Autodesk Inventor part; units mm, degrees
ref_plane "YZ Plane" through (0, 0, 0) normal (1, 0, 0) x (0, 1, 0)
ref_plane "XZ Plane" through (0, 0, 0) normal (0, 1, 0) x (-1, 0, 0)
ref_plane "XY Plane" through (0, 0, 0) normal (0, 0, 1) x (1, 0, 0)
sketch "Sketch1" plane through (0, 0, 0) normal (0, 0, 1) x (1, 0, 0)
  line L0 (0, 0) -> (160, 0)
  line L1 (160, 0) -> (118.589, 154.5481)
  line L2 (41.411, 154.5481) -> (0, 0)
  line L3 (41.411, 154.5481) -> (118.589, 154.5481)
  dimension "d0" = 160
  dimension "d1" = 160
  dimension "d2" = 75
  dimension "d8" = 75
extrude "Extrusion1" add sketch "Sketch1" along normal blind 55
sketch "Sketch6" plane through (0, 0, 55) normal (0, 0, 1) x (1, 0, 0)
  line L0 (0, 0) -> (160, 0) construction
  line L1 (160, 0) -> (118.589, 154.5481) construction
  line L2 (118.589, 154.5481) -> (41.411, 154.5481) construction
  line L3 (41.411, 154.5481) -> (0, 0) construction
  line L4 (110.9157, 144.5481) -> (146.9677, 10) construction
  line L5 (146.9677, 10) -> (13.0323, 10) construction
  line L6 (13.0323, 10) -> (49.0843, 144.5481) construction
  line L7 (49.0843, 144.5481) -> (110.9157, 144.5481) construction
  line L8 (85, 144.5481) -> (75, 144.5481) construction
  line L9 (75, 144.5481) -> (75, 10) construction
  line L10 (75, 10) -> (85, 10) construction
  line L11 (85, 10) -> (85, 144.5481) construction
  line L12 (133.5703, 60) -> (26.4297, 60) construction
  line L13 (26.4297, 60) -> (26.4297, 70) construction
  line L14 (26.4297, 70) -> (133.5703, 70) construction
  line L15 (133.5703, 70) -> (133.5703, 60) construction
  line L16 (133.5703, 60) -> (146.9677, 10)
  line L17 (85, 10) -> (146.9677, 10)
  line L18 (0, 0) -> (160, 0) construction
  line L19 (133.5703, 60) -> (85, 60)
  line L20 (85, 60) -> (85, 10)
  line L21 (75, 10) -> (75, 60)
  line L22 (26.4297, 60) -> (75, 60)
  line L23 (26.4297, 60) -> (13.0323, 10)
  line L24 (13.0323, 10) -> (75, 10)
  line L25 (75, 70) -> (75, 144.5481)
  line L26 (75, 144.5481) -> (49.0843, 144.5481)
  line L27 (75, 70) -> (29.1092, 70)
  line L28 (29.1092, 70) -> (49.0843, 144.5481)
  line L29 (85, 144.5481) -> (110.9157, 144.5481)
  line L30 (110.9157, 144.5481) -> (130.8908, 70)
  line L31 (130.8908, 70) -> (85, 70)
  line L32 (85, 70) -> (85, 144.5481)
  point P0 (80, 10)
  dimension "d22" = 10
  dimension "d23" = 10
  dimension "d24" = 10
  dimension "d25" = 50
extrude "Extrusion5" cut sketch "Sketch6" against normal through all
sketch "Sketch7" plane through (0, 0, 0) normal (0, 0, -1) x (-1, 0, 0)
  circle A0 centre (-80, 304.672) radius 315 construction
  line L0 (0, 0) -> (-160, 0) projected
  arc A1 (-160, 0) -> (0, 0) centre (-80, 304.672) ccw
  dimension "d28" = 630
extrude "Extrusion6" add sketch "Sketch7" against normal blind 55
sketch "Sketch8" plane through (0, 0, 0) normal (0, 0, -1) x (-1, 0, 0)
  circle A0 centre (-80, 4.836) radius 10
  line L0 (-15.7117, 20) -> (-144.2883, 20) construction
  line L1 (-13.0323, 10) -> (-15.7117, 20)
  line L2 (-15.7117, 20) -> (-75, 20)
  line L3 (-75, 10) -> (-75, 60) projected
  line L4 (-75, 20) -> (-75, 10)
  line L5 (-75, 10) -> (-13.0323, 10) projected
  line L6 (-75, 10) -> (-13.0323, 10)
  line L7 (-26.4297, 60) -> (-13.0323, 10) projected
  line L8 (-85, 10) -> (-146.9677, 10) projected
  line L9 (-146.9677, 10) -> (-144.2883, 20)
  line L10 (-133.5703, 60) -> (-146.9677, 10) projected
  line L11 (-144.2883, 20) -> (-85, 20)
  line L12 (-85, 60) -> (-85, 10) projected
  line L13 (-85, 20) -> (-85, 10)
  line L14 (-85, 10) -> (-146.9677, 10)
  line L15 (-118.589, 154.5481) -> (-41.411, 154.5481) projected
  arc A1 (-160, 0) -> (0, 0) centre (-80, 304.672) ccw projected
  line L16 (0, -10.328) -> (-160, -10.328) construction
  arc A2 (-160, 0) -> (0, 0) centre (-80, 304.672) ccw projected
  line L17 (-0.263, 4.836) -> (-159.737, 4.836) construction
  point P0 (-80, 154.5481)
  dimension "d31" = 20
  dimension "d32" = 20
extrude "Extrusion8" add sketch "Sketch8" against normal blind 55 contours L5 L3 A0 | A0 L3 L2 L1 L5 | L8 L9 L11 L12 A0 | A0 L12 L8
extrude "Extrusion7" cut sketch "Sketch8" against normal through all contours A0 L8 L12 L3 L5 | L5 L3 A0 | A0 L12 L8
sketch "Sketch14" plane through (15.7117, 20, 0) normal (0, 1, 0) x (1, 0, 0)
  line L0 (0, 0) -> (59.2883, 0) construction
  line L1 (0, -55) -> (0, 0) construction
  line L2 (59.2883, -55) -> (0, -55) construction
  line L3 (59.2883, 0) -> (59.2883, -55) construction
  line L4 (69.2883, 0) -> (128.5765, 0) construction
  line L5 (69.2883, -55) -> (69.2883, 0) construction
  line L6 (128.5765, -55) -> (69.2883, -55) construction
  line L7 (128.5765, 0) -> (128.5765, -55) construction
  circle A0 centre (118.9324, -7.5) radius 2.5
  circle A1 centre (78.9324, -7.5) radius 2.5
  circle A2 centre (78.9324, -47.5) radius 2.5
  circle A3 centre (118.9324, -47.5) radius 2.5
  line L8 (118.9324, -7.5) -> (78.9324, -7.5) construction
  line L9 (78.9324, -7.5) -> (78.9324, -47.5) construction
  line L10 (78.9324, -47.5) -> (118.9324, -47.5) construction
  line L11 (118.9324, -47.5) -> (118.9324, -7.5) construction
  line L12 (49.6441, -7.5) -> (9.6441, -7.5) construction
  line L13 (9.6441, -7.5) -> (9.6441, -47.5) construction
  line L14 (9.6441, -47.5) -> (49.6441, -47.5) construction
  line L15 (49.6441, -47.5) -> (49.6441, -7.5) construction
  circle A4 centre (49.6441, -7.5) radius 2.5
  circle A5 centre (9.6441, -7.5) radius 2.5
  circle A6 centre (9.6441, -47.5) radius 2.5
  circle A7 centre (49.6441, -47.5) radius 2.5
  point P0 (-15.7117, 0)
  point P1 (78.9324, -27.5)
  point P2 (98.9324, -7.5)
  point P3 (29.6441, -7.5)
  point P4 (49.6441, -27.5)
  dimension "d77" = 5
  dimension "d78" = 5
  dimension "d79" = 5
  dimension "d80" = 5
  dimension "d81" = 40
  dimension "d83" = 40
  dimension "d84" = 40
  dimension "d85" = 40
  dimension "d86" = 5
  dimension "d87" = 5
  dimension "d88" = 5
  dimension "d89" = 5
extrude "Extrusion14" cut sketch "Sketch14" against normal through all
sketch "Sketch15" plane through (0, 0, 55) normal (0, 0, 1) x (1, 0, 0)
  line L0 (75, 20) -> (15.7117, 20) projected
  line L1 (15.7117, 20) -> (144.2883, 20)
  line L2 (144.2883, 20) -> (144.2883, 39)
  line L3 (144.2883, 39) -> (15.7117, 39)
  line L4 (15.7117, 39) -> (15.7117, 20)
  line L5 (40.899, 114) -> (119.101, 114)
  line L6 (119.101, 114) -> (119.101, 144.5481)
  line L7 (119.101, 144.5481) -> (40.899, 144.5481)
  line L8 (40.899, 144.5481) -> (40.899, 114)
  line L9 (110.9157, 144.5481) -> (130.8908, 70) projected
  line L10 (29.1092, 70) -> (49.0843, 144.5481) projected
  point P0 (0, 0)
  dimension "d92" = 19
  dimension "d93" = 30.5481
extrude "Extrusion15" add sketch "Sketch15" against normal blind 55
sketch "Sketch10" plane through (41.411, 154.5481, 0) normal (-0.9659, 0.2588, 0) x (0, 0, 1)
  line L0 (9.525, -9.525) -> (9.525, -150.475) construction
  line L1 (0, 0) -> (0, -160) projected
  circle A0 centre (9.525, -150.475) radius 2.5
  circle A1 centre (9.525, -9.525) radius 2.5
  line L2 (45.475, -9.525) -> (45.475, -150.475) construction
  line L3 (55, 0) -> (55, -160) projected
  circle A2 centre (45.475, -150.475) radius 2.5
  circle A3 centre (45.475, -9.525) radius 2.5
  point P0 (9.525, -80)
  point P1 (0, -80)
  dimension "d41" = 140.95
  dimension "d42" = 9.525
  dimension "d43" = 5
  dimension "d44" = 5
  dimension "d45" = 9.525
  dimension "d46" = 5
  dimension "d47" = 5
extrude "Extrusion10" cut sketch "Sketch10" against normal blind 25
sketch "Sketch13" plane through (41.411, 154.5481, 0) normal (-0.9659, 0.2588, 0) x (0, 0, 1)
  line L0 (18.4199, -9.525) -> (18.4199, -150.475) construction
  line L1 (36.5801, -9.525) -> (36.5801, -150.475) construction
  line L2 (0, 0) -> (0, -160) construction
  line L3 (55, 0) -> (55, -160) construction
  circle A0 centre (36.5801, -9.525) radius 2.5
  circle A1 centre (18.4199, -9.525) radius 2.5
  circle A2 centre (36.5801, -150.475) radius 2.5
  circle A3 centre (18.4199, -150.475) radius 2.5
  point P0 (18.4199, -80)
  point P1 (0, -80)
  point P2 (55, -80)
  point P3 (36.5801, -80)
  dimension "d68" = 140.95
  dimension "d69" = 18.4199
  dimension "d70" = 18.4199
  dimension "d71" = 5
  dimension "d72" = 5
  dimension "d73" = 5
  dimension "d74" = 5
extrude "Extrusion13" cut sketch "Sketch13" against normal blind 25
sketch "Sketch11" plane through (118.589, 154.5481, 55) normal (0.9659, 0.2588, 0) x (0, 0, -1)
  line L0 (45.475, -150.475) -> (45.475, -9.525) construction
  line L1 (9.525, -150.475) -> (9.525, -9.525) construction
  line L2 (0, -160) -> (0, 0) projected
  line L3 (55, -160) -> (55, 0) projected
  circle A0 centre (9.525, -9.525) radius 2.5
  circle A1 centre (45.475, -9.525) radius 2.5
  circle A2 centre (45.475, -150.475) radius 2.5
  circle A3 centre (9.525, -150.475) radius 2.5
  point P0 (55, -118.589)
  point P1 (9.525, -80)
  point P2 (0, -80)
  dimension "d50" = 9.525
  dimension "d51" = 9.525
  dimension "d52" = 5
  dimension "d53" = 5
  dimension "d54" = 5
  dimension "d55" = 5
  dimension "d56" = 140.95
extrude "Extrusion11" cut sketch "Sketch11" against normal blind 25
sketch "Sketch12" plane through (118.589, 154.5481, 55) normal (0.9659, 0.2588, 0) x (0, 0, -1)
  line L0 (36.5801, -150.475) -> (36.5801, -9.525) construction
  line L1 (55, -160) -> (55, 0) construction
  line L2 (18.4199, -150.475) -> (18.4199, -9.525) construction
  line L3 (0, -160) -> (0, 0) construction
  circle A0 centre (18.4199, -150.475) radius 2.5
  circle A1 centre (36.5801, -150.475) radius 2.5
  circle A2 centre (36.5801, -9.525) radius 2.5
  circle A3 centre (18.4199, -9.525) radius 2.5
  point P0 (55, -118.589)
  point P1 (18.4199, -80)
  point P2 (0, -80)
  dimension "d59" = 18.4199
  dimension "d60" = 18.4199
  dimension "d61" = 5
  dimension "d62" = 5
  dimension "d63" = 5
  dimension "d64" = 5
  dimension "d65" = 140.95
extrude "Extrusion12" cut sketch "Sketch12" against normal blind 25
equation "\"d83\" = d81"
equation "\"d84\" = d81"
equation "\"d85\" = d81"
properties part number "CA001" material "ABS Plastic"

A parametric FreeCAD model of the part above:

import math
import FreeCAD as App
import Part
import Sketcher
Q = App.Units.Quantity

doc = App.newDocument("Part")
body = doc.addObject("PartDesign::Body", "Body")

sketch1 = body.newObject("Sketcher::SketchObject", "Sketch")
sketch1.AttachmentSupport = (doc.getObject("XY_Plane"), [""])
sketch1.MapMode = "FlatFace"
sketch1.addGeometry([
    Part.LineSegment(App.Vector(41, 155, 0), App.Vector(0, 0, 0)),
    Part.LineSegment(App.Vector(0, 0, 0), App.Vector(160, 0, 0)),
    Part.LineSegment(App.Vector(160, 0, 0), App.Vector(119, 155, 0)),
    Part.LineSegment(App.Vector(119, 155, 0), App.Vector(41, 155, 0)),
], False)
sketch1.addConstraint([
    Sketcher.Constraint("Coincident", 0, 2, 1, 1),
    Sketcher.Constraint("Coincident", 1, 2, 2, 1),
    Sketcher.Constraint("Coincident", 2, 2, 3, 1),
    Sketcher.Constraint("Coincident", 3, 2, 0, 1),
    Sketcher.Constraint("Horizontal", 1),
    Sketcher.Constraint("Horizontal", 3),
    Sketcher.Constraint("Coincident", 0, 2, -1, 1),
    Sketcher.Constraint("Equal", 0, 2),
    Sketcher.Constraint("DistanceX", 1, 1, 1, 2, Q("160 mm")),
    Sketcher.Constraint("Distance", 0, Q("160 mm")),
    Sketcher.Constraint("Angle", 0, Q("-105 deg")),
])
pad1 = body.newObject("PartDesign::Pad", "Pad")
pad1.Profile = sketch1
pad1.Length = 55

sketch2 = body.newObject("Sketcher::SketchObject", "Sketch001")
sketch2.AttachmentSupport = (doc.getObject("XY_Plane"), [""])
sketch2.MapMode = "FlatFace"
sketch2.AttachmentOffset = App.Placement(App.Vector(0, 0, 55), App.Rotation())
sketch2.addGeometry([
    Part.LineSegment(App.Vector(147, 10, 0), App.Vector(134, 60, 0)),
    Part.LineSegment(App.Vector(134, 60, 0), App.Vector(85, 60, 0)),
    Part.LineSegment(App.Vector(85, 60, 0), App.Vector(85, 10, 0)),
    Part.LineSegment(App.Vector(85, 10, 0), App.Vector(147, 10, 0)),
    Part.LineSegment(App.Vector(13, 10, 0), App.Vector(75, 10, 0)),
    Part.LineSegment(App.Vector(75, 10, 0), App.Vector(75, 60, 0)),
    Part.LineSegment(App.Vector(75, 60, 0), App.Vector(26, 60, 0)),
    Part.LineSegment(App.Vector(26, 60, 0), App.Vector(13, 10, 0)),
    Part.LineSegment(App.Vector(29, 70, 0), App.Vector(75, 70, 0)),
    Part.LineSegment(App.Vector(75, 70, 0), App.Vector(75, 145, 0)),
    Part.LineSegment(App.Vector(75, 145, 0), App.Vector(49, 145, 0)),
    Part.LineSegment(App.Vector(49, 145, 0), App.Vector(29, 70, 0)),
    Part.LineSegment(App.Vector(111, 145, 0), App.Vector(85, 145, 0)),
    Part.LineSegment(App.Vector(85, 145, 0), App.Vector(85, 70, 0)),
    Part.LineSegment(App.Vector(85, 70, 0), App.Vector(131, 70, 0)),
    Part.LineSegment(App.Vector(131, 70, 0), App.Vector(111, 145, 0)),
], False)
sketch2.addConstraint([
    Sketcher.Constraint("Coincident", 0, 2, 1, 1),
    Sketcher.Constraint("Coincident", 1, 2, 2, 1),
    Sketcher.Constraint("Coincident", 2, 2, 3, 1),
    Sketcher.Constraint("Coincident", 3, 2, 0, 1),
    Sketcher.Constraint("Coincident", 4, 2, 5, 1),
    Sketcher.Constraint("Coincident", 5, 2, 6, 1),
    Sketcher.Constraint("Coincident", 6, 2, 7, 1),
    Sketcher.Constraint("Coincident", 7, 2, 4, 1),
    Sketcher.Constraint("Coincident", 8, 2, 9, 1),
    Sketcher.Constraint("Coincident", 9, 2, 10, 1),
    Sketcher.Constraint("Coincident", 10, 2, 11, 1),
    Sketcher.Constraint("Coincident", 11, 2, 8, 1),
    Sketcher.Constraint("Coincident", 12, 2, 13, 1),
    Sketcher.Constraint("Coincident", 13, 2, 14, 1),
    Sketcher.Constraint("Coincident", 14, 2, 15, 1),
    Sketcher.Constraint("Coincident", 15, 2, 12, 1),
    Sketcher.Constraint("Horizontal", 1),
    Sketcher.Constraint("Vertical", 2),
    Sketcher.Constraint("Horizontal", 3),
    Sketcher.Constraint("Horizontal", 4),
    Sketcher.Constraint("Vertical", 5),
    Sketcher.Constraint("Horizontal", 6),
    Sketcher.Constraint("Horizontal", 8),
    Sketcher.Constraint("Vertical", 9),
    Sketcher.Constraint("Horizontal", 10),
    Sketcher.Constraint("Horizontal", 12),
    Sketcher.Constraint("Vertical", 13),
    Sketcher.Constraint("Horizontal", 14),
    Sketcher.Constraint("Parallel", 7, 11),
    Sketcher.Constraint("Parallel", 0, 15),
    Sketcher.Constraint("Horizontal", 3, 2, 4, 2),
    Sketcher.Constraint("Horizontal", 1, 2, 5, 2),
    Sketcher.Constraint("Horizontal", 10, 2, 12, 2),
    Sketcher.Constraint("Horizontal", 11, 2, 13, 2),
    Sketcher.Constraint("Vertical", 5, 2, 8, 2),
    Sketcher.Constraint("Vertical", 2, 2, 12, 2),
    Sketcher.Constraint("Equal", 3, 4),
    Sketcher.Constraint("Equal", 1, 6),
    Sketcher.Constraint("Equal", 10, 12),
    Sketcher.Constraint("DistanceY", 2, 2, 2, 1, Q("50 mm")),
    Sketcher.Constraint("DistanceY", -1, 1, 2, 2, Q("10 mm")),
    Sketcher.Constraint("DistanceX", 4, 2, 2, 2, Q("10 mm")),
    Sketcher.Constraint("DistanceY", 5, 2, 8, 2, Q("10 mm")),
    Sketcher.Constraint("Angle", 0, Q("105 deg")),
    Sketcher.Constraint("DistanceX", -1, 1, 1, 2, Q("85 mm")),
    Sketcher.Constraint("DistanceY", 9, 1, 9, 2, Q("74.548 mm")),
    Sketcher.Constraint("DistanceX", 1, 2, 1, 1, Q("48.5703 mm")),
    Sketcher.Constraint("DistanceX", 8, 1, 8, 2, Q("45.8908 mm")),
])
pocket1 = body.newObject("PartDesign::Pocket", "Pocket")
pocket1.Profile = sketch2
pocket1.Type = "ThroughAll"

sketch3 = body.newObject("Sketcher::SketchObject", "Sketch002")
sketch3.AttachmentSupport = (doc.getObject("XY_Plane"), [""])
sketch3.MapMode = "FlatFace"
sketch3.addGeometry([
    Part.ArcOfCircle(Part.Circle(App.Vector(80, 305, 0), App.Vector(0, 0, 1), 315), math.radians(-105), math.radians(-75)),
    Part.LineSegment(App.Vector(0, 0, 0), App.Vector(160, 0, 0)),
], False)
sketch3.addConstraint([
    Sketcher.Constraint("Coincident", 0, 1, 1, 1),
    Sketcher.Constraint("Coincident", 1, 2, 0, 2),
    Sketcher.Constraint("Horizontal", 1),
    Sketcher.Constraint("Coincident", 0, 1, -1, 1),
    Sketcher.Constraint("Radius", 0, Q("315 mm")),
    Sketcher.Constraint("DistanceX", 1, 1, 1, 2, Q("160 mm")),
])
pad2 = body.newObject("PartDesign::Pad", "Pad001")
pad2.Profile = sketch3
pad2.Length = 55

sketch4 = body.newObject("Sketcher::SketchObject", "Sketch003")
sketch4.AttachmentSupport = (doc.getObject("XY_Plane"), [""])
sketch4.MapMode = "FlatFace"
sketch4.addGeometry([
    Part.LineSegment(App.Vector(75, 10, 0), App.Vector(13, 10, 0)),
    Part.LineSegment(App.Vector(13, 10, 0), App.Vector(16, 20, 0)),
    Part.LineSegment(App.Vector(16, 20, 0), App.Vector(75, 20, 0)),
    Part.LineSegment(App.Vector(75, 20, 0), App.Vector(75, 10, 0)),
    Part.LineSegment(App.Vector(147, 10, 0), App.Vector(85, 10, 0)),
    Part.LineSegment(App.Vector(85, 10, 0), App.Vector(85, 20, 0)),
    Part.LineSegment(App.Vector(85, 20, 0), App.Vector(144, 20, 0)),
    Part.LineSegment(App.Vector(144, 20, 0), App.Vector(147, 10, 0)),
], False)
sketch4.addConstraint([
    Sketcher.Constraint("Coincident", 0, 2, 1, 1),
    Sketcher.Constraint("Coincident", 1, 2, 2, 1),
    Sketcher.Constraint("Coincident", 2, 2, 3, 1),
    Sketcher.Constraint("Coincident", 3, 2, 0, 1),
    Sketcher.Constraint("Coincident", 4, 2, 5, 1),
    Sketcher.Constraint("Coincident", 5, 2, 6, 1),
    Sketcher.Constraint("Coincident", 6, 2, 7, 1),
    Sketcher.Constraint("Coincident", 7, 2, 4, 1),
    Sketcher.Constraint("Horizontal", 0),
    Sketcher.Constraint("Horizontal", 2),
    Sketcher.Constraint("Vertical", 3),
    Sketcher.Constraint("Horizontal", 4),
    Sketcher.Constraint("Vertical", 5),
    Sketcher.Constraint("Horizontal", 6),
    Sketcher.Constraint("Horizontal", 3, 2, 4, 2),
    Sketcher.Constraint("Horizontal", 2, 2, 5, 2),
    Sketcher.Constraint("Equal", 0, 4),
    Sketcher.Constraint("Equal", 2, 6),
    Sketcher.Constraint("DistanceY", -1, 1, 1, 2, Q("20 mm")),
    Sketcher.Constraint("DistanceY", 3, 2, 3, 1, Q("10 mm")),
    Sketcher.Constraint("Angle", 1, Q("75.0005 deg")),
    Sketcher.Constraint("DistanceX", -1, 1, 2, 2, Q("75 mm")),
    Sketcher.Constraint("DistanceX", -1, 1, 4, 2, Q("85 mm")),
    Sketcher.Constraint("DistanceX", 0, 2, 0, 1, Q("61.9677 mm")),
])
pad3 = body.newObject("PartDesign::Pad", "Pad002")
pad3.Profile = sketch4
pad3.Length = 55

sketch5 = body.newObject("Sketcher::SketchObject", "Sketch004")
sketch5.AttachmentSupport = (doc.getObject("XY_Plane"), [""])
sketch5.MapMode = "FlatFace"
sketch5.addGeometry(Part.Circle(App.Vector(80, 5, 0), App.Vector(0, 0, 1), 10), False)
sketch5.addConstraint([
    Sketcher.Constraint("Diameter", 0, Q("20 mm")),
    Sketcher.Constraint("DistanceX", -1, 1, 0, 3, Q("80 mm")),
    Sketcher.Constraint("DistanceY", -1, 1, 0, 3, Q("4.836 mm")),
])
pocket2 = body.newObject("PartDesign::Pocket", "Pocket001")
pocket2.Profile = sketch5
pocket2.Type = "ThroughAll"
pocket2.Reversed = True

sketch6 = body.newObject("Sketcher::SketchObject", "Sketch005")
sketch6.AttachmentSupport = (doc.getObject("XZ_Plane"), [""])
sketch6.MapMode = "FlatFace"
sketch6.AttachmentOffset = App.Placement(App.Vector(0, 0, -20), App.Rotation())
sketch6.addGeometry([
    Part.Circle(App.Vector(134.6, 7.5, 0), App.Vector(0, 0, 1), 2.5),
    Part.Circle(App.Vector(94.6, 7.5, 0), App.Vector(0, 0, 1), 2.5),
    Part.Circle(App.Vector(94.6, 47.5, 0), App.Vector(0, 0, 1), 2.5),
    Part.Circle(App.Vector(134.6, 47.5, 0), App.Vector(0, 0, 1), 2.5),
    Part.Circle(App.Vector(65.4, 7.5, 0), App.Vector(0, 0, 1), 2.5),
    Part.Circle(App.Vector(25.4, 7.5, 0), App.Vector(0, 0, 1), 2.5),
    Part.Circle(App.Vector(25.4, 47.5, 0), App.Vector(0, 0, 1), 2.5),
    Part.Circle(App.Vector(65.4, 47.5, 0), App.Vector(0, 0, 1), 2.5),
], False)
sketch6.addConstraint([
    Sketcher.Constraint("Equal", 0, 1),
    Sketcher.Constraint("Equal", 1, 2),
    Sketcher.Constraint("Equal", 2, 3),
    Sketcher.Constraint("Equal", 3, 4),
    Sketcher.Constraint("Equal", 4, 5),
    Sketcher.Constraint("Equal", 5, 6),
    Sketcher.Constraint("Equal", 6, 7),
    Sketcher.Constraint("Horizontal", 0, 3, 1, 3),
    Sketcher.Constraint("Horizontal", 2, 3, 3, 3),
    Sketcher.Constraint("Horizontal", 1, 3, 4, 3),
    Sketcher.Constraint("Horizontal", 4, 3, 5, 3),
    Sketcher.Constraint("Horizontal", 3, 3, 6, 3),
    Sketcher.Constraint("Horizontal", 6, 3, 7, 3),
    Sketcher.Constraint("Vertical", 1, 3, 2, 3),
    Sketcher.Constraint("Vertical", 0, 3, 3, 3),
    Sketcher.Constraint("Vertical", 5, 3, 6, 3),
    Sketcher.Constraint("Vertical", 4, 3, 7, 3),
    Sketcher.Constraint("Diameter", 0, Q("5 mm")),
    Sketcher.Constraint("DistanceX", 1, 3, 0, 3, Q("40 mm")),
    Sketcher.Constraint("DistanceY", 1, 3, 2, 3, Q("40 mm")),
    Sketcher.Constraint("DistanceX", 5, 3, 4, 3, Q("40 mm")),
    Sketcher.Constraint("DistanceY", -1, 1, 0, 3, Q("7.5 mm")),
    Sketcher.Constraint("DistanceX", -1, 1, 0, 3, Q("134.644 mm")),
    Sketcher.Constraint("DistanceX", -1, 1, 4, 3, Q("65.3558 mm")),
])
pocket3 = body.newObject("PartDesign::Pocket", "Pocket002")
pocket3.Profile = sketch6
pocket3.Type = "ThroughAll"
pocket3.Reversed = True

sketch7 = body.newObject("Sketcher::SketchObject", "Sketch006")
sketch7.AttachmentSupport = (doc.getObject("XY_Plane"), [""])
sketch7.MapMode = "FlatFace"
sketch7.AttachmentOffset = App.Placement(App.Vector(0, 0, 55), App.Rotation())
sketch7.addGeometry([
    Part.LineSegment(App.Vector(16, 20, 0), App.Vector(144, 20, 0)),
    Part.LineSegment(App.Vector(144, 20, 0), App.Vector(144, 39, 0)),
    Part.LineSegment(App.Vector(144, 39, 0), App.Vector(16, 39, 0)),
    Part.LineSegment(App.Vector(16, 39, 0), App.Vector(16, 20, 0)),
    Part.LineSegment(App.Vector(41, 145, 0), App.Vector(41, 114, 0)),
    Part.LineSegment(App.Vector(41, 114, 0), App.Vector(119, 114, 0)),
    Part.LineSegment(App.Vector(119, 114, 0), App.Vector(119, 145, 0)),
    Part.LineSegment(App.Vector(119, 145, 0), App.Vector(41, 145, 0)),
], False)
sketch7.addConstraint([
    Sketcher.Constraint("Coincident", 0, 2, 1, 1),
    Sketcher.Constraint("Coincident", 1, 2, 2, 1),
    Sketcher.Constraint("Coincident", 2, 2, 3, 1),
    Sketcher.Constraint("Coincident", 3, 2, 0, 1),
    Sketcher.Constraint("Coincident", 4, 2, 5, 1),
    Sketcher.Constraint("Coincident", 5, 2, 6, 1),
    Sketcher.Constraint("Coincident", 6, 2, 7, 1),
    Sketcher.Constraint("Coincident", 7, 2, 4, 1),
    Sketcher.Constraint("Horizontal", 0),
    Sketcher.Constraint("Vertical", 1),
    Sketcher.Constraint("Horizontal", 2),
    Sketcher.Constraint("Vertical", 3),
    Sketcher.Constraint("Vertical", 4),
    Sketcher.Constraint("Horizontal", 5),
    Sketcher.Constraint("Vertical", 6),
    Sketcher.Constraint("Horizontal", 7),
    Sketcher.Constraint("DistanceY", 1, 1, 1, 2, Q("19 mm")),
    Sketcher.Constraint("DistanceY", 4, 2, 4, 1, Q("30.548 mm")),
    Sketcher.Constraint("DistanceY", -1, 1, 0, 2, Q("20 mm")),
    Sketcher.Constraint("DistanceY", -1, 1, 4, 2, Q("114 mm")),
    Sketcher.Constraint("DistanceX", 5, 1, 5, 2, Q("78.202 mm")),
    Sketcher.Constraint("DistanceX", 0, 1, 0, 2, Q("128.5766 mm")),
    Sketcher.Constraint("DistanceX", -1, 1, 4, 2, Q("40.899 mm")),
    Sketcher.Constraint("DistanceX", -1, 1, 0, 2, Q("144.2883 mm")),
])
pad4 = body.newObject("PartDesign::Pad", "Pad003")
pad4.Profile = sketch7
pad4.Length = 55
pad4.Reversed = True

sketch8 = body.newObject("Sketcher::SketchObject", "Sketch007")
sketch8.Placement = App.Placement(App.Vector(41.411, 154.5481, 0), App.Rotation(App.Vector(0, 0, 1), App.Vector(0.258819045, 0.965925826, 0), App.Vector(-0.965925826, 0.258819045, 0), "ZXY"))
sketch8.addGeometry([
    Part.Circle(App.Vector(9.5, -150.5, 0), App.Vector(0, 0, 1), 2.5),
    Part.Circle(App.Vector(9.5, -9.5, 0), App.Vector(0, 0, 1), 2.5),
    Part.Circle(App.Vector(45.5, -150.5, 0), App.Vector(0, 0, 1), 2.5),
    Part.Circle(App.Vector(45.5, -9.5, 0), App.Vector(0, 0, 1), 2.5),
], False)
sketch8.addConstraint([
    Sketcher.Constraint("Equal", 0, 1),
    Sketcher.Constraint("Equal", 1, 2),
    Sketcher.Constraint("Equal", 2, 3),
    Sketcher.Constraint("Horizontal", 0, 3, 2, 3),
    Sketcher.Constraint("Horizontal", 1, 3, 3, 3),
    Sketcher.Constraint("Vertical", 0, 3, 1, 3),
    Sketcher.Constraint("Vertical", 2, 3, 3, 3),
    Sketcher.Constraint("Diameter", 0, Q("5 mm")),
    Sketcher.Constraint("DistanceY", 0, 3, 1, 3, Q("140.95 mm")),
    Sketcher.Constraint("DistanceX", -1, 1, 0, 3, Q("9.525 mm")),
    Sketcher.Constraint("DistanceY", 1, 3, -1, 1, Q("9.525 mm")),
    Sketcher.Constraint("DistanceX", 0, 3, 2, 3, Q("35.95 mm")),
])
pocket4 = body.newObject("PartDesign::Pocket", "Pocket003")
pocket4.Profile = sketch8
pocket4.Length = 25

sketch9 = body.newObject("Sketcher::SketchObject", "Sketch008")
sketch9.Placement = App.Placement(App.Vector(41.411, 154.5481, 0), App.Rotation(App.Vector(0, 0, 1), App.Vector(0.258819045, 0.965925826, 0), App.Vector(-0.965925826, 0.258819045, 0), "ZXY"))
sketch9.addGeometry([
    Part.Circle(App.Vector(36.6, -9.5, 0), App.Vector(0, 0, 1), 2.5),
    Part.Circle(App.Vector(18.4, -9.5, 0), App.Vector(0, 0, 1), 2.5),
    Part.Circle(App.Vector(36.6, -150.5, 0), App.Vector(0, 0, 1), 2.5),
    Part.Circle(App.Vector(18.4, -150.5, 0), App.Vector(0, 0, 1), 2.5),
], False)
sketch9.addConstraint([
    Sketcher.Constraint("Equal", 0, 1),
    Sketcher.Constraint("Equal", 1, 2),
    Sketcher.Constraint("Equal", 2, 3),
    Sketcher.Constraint("Horizontal", 0, 3, 1, 3),
    Sketcher.Constraint("Horizontal", 2, 3, 3, 3),
    Sketcher.Constraint("Vertical", 0, 3, 2, 3),
    Sketcher.Constraint("Vertical", 1, 3, 3, 3),
    Sketcher.Constraint("Diameter", 0, Q("5 mm")),
    Sketcher.Constraint("DistanceX", -1, 1, 1, 3, Q("18.42 mm")),
    Sketcher.Constraint("DistanceY", 2, 3, 0, 3, Q("140.95 mm")),
    Sketcher.Constraint("DistanceX", -1, 1, 0, 3, Q("36.58 mm")),
    Sketcher.Constraint("DistanceY", 0, 3, -1, 1, Q("9.525 mm")),
])
pocket5 = body.newObject("PartDesign::Pocket", "Pocket004")
pocket5.Profile = sketch9
pocket5.Length = 25

sketch10 = body.newObject("Sketcher::SketchObject", "Sketch009")
sketch10.Placement = App.Placement(App.Vector(118.589, 154.5481, 55), App.Rotation(App.Vector(0, 0, -1), App.Vector(-0.258819045, 0.965925826, 0), App.Vector(0.965925826, 0.258819045, 0), "ZXY"))
sketch10.addGeometry([
    Part.Circle(App.Vector(9.5, -9.5, 0), App.Vector(0, 0, 1), 2.5),
    Part.Circle(App.Vector(45.5, -9.5, 0), App.Vector(0, 0, 1), 2.5),
    Part.Circle(App.Vector(45.5, -150.5, 0), App.Vector(0, 0, 1), 2.5),
    Part.Circle(App.Vector(9.5, -150.5, 0), App.Vector(0, 0, 1), 2.5),
], False)
sketch10.addConstraint([
    Sketcher.Constraint("Equal", 0, 1),
    Sketcher.Constraint("Equal", 1, 2),
    Sketcher.Constraint("Equal", 2, 3),
    Sketcher.Constraint("Horizontal", 0, 3, 1, 3),
    Sketcher.Constraint("Horizontal", 2, 3, 3, 3),
    Sketcher.Constraint("Vertical", 1, 3, 2, 3),
    Sketcher.Constraint("Vertical", 0, 3, 3, 3),
    Sketcher.Constraint("Diameter", 0, Q("5 mm")),
    Sketcher.Constraint("DistanceY", 2, 3, 1, 3, Q("140.95 mm")),
    Sketcher.Constraint("DistanceX", -1, 1, 0, 3, Q("9.525 mm")),
    Sketcher.Constraint("DistanceY", 0, 3, -1, 1, Q("9.525 mm")),
    Sketcher.Constraint("DistanceX", 0, 3, 1, 3, Q("35.95 mm")),
])
pocket6 = body.newObject("PartDesign::Pocket", "Pocket005")
pocket6.Profile = sketch10
pocket6.Length = 25

sketch11 = body.newObject("Sketcher::SketchObject", "Sketch010")
sketch11.Placement = App.Placement(App.Vector(118.589, 154.5481, 55), App.Rotation(App.Vector(0, 0, -1), App.Vector(-0.258819045, 0.965925826, 0), App.Vector(0.965925826, 0.258819045, 0), "ZXY"))
sketch11.addGeometry([
    Part.Circle(App.Vector(18.4, -150.5, 0), App.Vector(0, 0, 1), 2.5),
    Part.Circle(App.Vector(36.6, -150.5, 0), App.Vector(0, 0, 1), 2.5),
    Part.Circle(App.Vector(36.6, -9.5, 0), App.Vector(0, 0, 1), 2.5),
    Part.Circle(App.Vector(18.4, -9.5, 0), App.Vector(0, 0, 1), 2.5),
], False)
sketch11.addConstraint([
    Sketcher.Constraint("Equal", 0, 1),
    Sketcher.Constraint("Equal", 1, 2),
    Sketcher.Constraint("Equal", 2, 3),
    Sketcher.Constraint("Horizontal", 0, 3, 1, 3),
    Sketcher.Constraint("Horizontal", 2, 3, 3, 3),
    Sketcher.Constraint("Vertical", 1, 3, 2, 3),
    Sketcher.Constraint("Vertical", 0, 3, 3, 3),
    Sketcher.Constraint("Diameter", 0, Q("5 mm")),
    Sketcher.Constraint("DistanceX", -1, 1, 0, 3, Q("18.42 mm")),
    Sketcher.Constraint("DistanceY", 1, 3, 2, 3, Q("140.95 mm")),
    Sketcher.Constraint("DistanceX", -1, 1, 1, 3, Q("36.58 mm")),
    Sketcher.Constraint("DistanceY", 0, 3, -1, 1, Q("150.475 mm")),
])
pocket7 = body.newObject("PartDesign::Pocket", "Pocket006")
pocket7.Profile = sketch11
pocket7.Length = 25

doc.recompute()
